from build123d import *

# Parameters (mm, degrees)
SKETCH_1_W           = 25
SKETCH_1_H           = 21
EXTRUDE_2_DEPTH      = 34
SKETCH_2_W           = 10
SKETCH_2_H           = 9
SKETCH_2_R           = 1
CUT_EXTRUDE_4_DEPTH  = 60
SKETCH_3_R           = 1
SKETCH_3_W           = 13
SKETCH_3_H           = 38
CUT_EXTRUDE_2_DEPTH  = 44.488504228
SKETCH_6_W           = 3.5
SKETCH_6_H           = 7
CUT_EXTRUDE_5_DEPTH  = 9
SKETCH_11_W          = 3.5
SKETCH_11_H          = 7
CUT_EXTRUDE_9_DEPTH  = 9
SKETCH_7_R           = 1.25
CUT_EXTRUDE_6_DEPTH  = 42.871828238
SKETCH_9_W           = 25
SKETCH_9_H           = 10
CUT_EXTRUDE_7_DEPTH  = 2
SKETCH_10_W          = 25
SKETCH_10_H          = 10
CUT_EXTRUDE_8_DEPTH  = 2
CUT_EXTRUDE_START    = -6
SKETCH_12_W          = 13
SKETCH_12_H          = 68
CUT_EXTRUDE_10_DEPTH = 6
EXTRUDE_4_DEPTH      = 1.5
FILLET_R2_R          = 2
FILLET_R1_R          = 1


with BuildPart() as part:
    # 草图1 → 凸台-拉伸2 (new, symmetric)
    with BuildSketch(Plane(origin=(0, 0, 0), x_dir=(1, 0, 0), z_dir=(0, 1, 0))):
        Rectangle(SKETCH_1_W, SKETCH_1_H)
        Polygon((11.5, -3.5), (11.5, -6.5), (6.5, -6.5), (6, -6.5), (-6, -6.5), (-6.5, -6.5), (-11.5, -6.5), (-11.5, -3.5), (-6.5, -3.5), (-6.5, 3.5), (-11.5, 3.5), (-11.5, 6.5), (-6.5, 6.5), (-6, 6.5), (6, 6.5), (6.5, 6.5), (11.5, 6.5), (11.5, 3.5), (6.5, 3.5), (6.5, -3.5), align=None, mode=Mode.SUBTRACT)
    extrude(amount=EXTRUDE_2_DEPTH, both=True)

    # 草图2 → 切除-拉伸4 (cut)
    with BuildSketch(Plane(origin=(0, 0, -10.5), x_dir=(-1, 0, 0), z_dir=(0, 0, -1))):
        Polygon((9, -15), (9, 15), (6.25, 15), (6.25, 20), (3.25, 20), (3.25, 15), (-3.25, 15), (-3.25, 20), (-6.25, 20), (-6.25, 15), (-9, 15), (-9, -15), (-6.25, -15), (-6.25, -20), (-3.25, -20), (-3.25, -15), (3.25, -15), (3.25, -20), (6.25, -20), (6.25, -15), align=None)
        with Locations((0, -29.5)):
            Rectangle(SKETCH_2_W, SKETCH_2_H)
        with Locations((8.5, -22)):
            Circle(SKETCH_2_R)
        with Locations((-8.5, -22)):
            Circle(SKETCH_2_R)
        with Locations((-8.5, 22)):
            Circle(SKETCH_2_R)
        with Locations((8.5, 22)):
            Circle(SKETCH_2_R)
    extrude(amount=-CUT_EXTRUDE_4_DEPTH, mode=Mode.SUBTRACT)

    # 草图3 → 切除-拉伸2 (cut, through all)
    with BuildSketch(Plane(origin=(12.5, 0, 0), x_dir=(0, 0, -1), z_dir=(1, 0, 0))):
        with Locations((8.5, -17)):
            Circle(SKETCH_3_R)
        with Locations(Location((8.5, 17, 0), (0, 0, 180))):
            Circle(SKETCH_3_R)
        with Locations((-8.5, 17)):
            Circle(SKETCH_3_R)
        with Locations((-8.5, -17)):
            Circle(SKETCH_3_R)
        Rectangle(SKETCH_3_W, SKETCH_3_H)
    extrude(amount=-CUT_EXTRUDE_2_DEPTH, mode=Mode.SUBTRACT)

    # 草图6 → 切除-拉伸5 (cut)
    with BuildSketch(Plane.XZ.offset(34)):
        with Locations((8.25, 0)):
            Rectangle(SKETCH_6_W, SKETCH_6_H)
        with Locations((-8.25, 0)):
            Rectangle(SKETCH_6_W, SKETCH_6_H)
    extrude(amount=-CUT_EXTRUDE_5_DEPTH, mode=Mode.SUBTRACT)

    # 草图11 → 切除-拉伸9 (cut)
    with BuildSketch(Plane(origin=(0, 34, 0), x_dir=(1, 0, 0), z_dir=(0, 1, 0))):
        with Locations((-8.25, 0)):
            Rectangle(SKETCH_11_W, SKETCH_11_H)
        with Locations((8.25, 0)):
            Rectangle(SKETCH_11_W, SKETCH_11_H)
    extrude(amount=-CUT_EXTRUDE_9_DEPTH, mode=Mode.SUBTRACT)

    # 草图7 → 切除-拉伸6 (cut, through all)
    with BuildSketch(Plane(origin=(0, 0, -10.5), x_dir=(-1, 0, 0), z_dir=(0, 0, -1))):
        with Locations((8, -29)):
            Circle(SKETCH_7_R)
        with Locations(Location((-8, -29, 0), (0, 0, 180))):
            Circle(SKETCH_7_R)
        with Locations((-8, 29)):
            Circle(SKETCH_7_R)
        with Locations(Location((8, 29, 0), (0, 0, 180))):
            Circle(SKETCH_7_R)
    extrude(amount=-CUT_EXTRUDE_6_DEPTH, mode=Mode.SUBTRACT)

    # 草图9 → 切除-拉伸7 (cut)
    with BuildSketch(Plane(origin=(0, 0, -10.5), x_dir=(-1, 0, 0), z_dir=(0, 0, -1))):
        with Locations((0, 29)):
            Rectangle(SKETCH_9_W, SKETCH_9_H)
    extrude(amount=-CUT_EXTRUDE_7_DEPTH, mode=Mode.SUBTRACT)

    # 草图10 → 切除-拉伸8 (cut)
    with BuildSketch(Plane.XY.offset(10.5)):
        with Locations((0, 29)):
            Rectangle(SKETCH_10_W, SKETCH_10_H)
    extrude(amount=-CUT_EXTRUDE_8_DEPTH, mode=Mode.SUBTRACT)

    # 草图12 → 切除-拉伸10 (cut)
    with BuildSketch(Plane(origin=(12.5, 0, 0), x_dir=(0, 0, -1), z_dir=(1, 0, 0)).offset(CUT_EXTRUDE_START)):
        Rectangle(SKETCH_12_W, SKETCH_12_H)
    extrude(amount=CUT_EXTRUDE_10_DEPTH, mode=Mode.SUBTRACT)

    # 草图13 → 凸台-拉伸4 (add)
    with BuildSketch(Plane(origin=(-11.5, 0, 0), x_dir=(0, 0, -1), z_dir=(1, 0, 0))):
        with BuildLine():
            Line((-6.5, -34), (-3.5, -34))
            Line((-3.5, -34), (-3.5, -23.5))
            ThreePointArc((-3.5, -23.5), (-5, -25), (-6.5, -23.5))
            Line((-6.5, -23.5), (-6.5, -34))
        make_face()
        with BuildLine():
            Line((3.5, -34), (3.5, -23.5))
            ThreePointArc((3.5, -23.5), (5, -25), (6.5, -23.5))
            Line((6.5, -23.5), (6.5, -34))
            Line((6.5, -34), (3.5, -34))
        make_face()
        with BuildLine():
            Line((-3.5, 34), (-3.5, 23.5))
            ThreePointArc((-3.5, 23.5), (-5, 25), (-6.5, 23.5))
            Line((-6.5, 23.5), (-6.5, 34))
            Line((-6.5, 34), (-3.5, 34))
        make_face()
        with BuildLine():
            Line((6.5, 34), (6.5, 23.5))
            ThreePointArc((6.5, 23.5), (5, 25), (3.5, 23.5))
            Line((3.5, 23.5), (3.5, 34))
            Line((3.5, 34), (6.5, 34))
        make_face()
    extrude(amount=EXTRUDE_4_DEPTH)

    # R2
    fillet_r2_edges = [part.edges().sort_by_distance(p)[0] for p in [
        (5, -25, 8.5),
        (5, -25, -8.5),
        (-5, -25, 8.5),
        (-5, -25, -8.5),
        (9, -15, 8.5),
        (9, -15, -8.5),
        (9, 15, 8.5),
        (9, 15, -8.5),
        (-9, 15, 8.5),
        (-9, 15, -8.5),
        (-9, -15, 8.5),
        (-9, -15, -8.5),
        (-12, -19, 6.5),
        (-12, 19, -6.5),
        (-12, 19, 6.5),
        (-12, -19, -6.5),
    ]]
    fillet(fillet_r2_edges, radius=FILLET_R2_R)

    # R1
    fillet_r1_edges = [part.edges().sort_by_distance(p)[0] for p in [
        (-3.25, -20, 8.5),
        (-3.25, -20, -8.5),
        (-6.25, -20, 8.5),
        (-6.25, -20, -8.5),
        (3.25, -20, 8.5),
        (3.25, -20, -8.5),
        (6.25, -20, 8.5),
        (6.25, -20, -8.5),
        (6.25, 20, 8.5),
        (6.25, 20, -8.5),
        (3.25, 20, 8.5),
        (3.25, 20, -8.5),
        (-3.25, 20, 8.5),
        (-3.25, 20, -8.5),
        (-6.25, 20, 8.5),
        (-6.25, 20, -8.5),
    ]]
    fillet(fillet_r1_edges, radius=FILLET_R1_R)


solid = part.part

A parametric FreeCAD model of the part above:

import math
import FreeCAD as App
import Part
import Sketcher
from FreeCAD import Vector


def edges_at(feature, points):
    """Names of the edges that pass closest to the given points."""
    edges = feature.Shape.Edges
    near = lambda p: min(range(len(edges)), key=lambda i: edges[i].distToShape(Part.Vertex(*p))[0])
    return sorted({f"Edge{near(p) + 1}" for p in points})


def add_polygon(sketch, points):
    """Adds a closed chain of lines whose ends are joined by coincident constraints."""
    first, n = sketch.GeometryCount, len(points)
    for a, b in zip(points, points[1:] + points[:1]):
        sketch.addGeometry(Part.LineSegment(App.Vector(*a, 0), App.Vector(*b, 0)), False)
    for i in range(n):
        sketch.addConstraint(Sketcher.Constraint("Coincident", first + i, 2, first + (i + 1) % n, 1))

doc = App.newDocument("Part")
params = doc.addObject("Spreadsheet::Sheet", "Params")
for row, (alias, value) in enumerate([
    ("sketch1_width", "25 mm"),
    ("sketch1_width2", "5 mm"),
    ("sketch1_width3", "23 mm"),
    ("sketch1_height", "21 mm"),
    ("sketch1_height2", "3 mm"),
    ("pad1_length", "68 mm"),
    ("sketch2_diameter", "2 mm"),
    ("sketch2_width", "3 mm"),
    ("sketch2_width2", "10 mm"),
    ("sketch2_height", "30 mm"),
    ("sketch2_height2", "5 mm"),
    ("pocket1_length", "60 mm"),
    ("sketch3_diameter", "2 mm"),
    ("sketch3_width", "38 mm"),
    ("sketch3_height", "13 mm"),
    ("sketch4_height", "7 mm"),
    ("sketch4_width", "3.5 mm"),
    ("pocket3_length", "9 mm"),
    ("sketch5_height", "7 mm"),
    ("sketch5_width", "3.5 mm"),
    ("pocket4_length", "9 mm"),
    ("sketch6_diameter", "2.5 mm"),
    ("sketch7_width", "25 mm"),
    ("sketch7_height", "10 mm"),
    ("pocket6_length", "2 mm"),
    ("sketch8_width", "25 mm"),
    ("sketch8_height", "10 mm"),
    ("pocket7_length", "2 mm"),
    ("sketch9_width", "68 mm"),
    ("sketch9_height", "13 mm"),
    ("pocket8_length", "6 mm"),
    ("sketch10_radius", "1.5 mm"),
    ("sketch10_width", "10.5 mm"),
    ("pad2_length", "1.5 mm"),
    ("fillet_radius", "2 mm"),
    ("fillet2_radius", "1 mm"),
], start=1):
    params.set(f"A{row}", alias)
    params.set(f"B{row}", "=" + value)
    params.setAlias(f"B{row}", alias)

body = doc.addObject("PartDesign::Body", "Body")

# Sketch on XZ plane
sketch1 = body.newObject("Sketcher::SketchObject", "Sketch")
sketch1.AttachmentSupport = (doc.getObject("XZ_Plane"), [""])
sketch1.MapMode = "FlatFace"
add_polygon(sketch1, [(-12.5, -10.5), (-12.5, 10.5), (12.5, 10.5), (12.5, -10.5)])  # lines 0-3
add_polygon(sketch1, [(6.5, 3.5), (11.5, 3.5), (11.5, 6.5), (-11.5, 6.5), (-11.5, 3.5), (-6.5, 3.5), (-6.5, -3.5), (-11.5, -3.5), (-11.5, -6.5), (11.5, -6.5), (11.5, -3.5), (6.5, -3.5)])  # lines 4-15
sketch1.addConstraint(Sketcher.Constraint("Vertical", 0))
sketch1.addConstraint(Sketcher.Constraint("Horizontal", 1))
sketch1.addConstraint(Sketcher.Constraint("Vertical", 2))
sketch1.addConstraint(Sketcher.Constraint("Horizontal", 3))
sketch1.addConstraint(Sketcher.Constraint("Horizontal", 4))
sketch1.addConstraint(Sketcher.Constraint("Vertical", 5))
sketch1.addConstraint(Sketcher.Constraint("Horizontal", 6))
sketch1.addConstraint(Sketcher.Constraint("Vertical", 7))
sketch1.addConstraint(Sketcher.Constraint("Horizontal", 8))
sketch1.addConstraint(Sketcher.Constraint("Vertical", 9))
sketch1.addConstraint(Sketcher.Constraint("Horizontal", 10))
sketch1.addConstraint(Sketcher.Constraint("Vertical", 11))
sketch1.addConstraint(Sketcher.Constraint("Horizontal", 12))
sketch1.addConstraint(Sketcher.Constraint("Vertical", 13))
sketch1.addConstraint(Sketcher.Constraint("Horizontal", 14))
sketch1.addConstraint(Sketcher.Constraint("Vertical", 15))
sketch1.addConstraint(Sketcher.Constraint("Symmetric", 0, 2, 2, 2, -1, 1))
sketch1.addConstraint(Sketcher.Constraint("Symmetric", 4, 2, 10, 2, -1, 1))
sketch1.addConstraint(Sketcher.Constraint("Symmetric", 6, 2, 12, 2, -1, 1))
sketch1.addConstraint(Sketcher.Constraint("Symmetric", 8, 2, 14, 2, -1, 1))
sketch1.addConstraint(Sketcher.Constraint("Symmetric", 4, 2, 7, 2, -2))
sketch1.addConstraint(Sketcher.Constraint("DistanceX", 1, 1, 1, 2, 25.0))
sketch1.addConstraint(Sketcher.Constraint("DistanceX", 4, 1, 4, 2, 5.0))
sketch1.addConstraint(Sketcher.Constraint("DistanceX", 6, 2, 6, 1, 23.0))
sketch1.addConstraint(Sketcher.Constraint("DistanceY", 0, 1, 0, 2, 21.0))
sketch1.addConstraint(Sketcher.Constraint("DistanceY", 5, 1, 5, 2, 3.0))
sketch1.addConstraint(Sketcher.Constraint("DistanceY", 9, 2, 9, 1, 7.0))
sketch1.setExpression("Constraints[37]", "Params.sketch1_width")
sketch1.setExpression("Constraints[38]", "Params.sketch1_width2")
sketch1.setExpression("Constraints[39]", "Params.sketch1_width3")
sketch1.setExpression("Constraints[40]", "Params.sketch1_height")
sketch1.setExpression("Constraints[41]", "Params.sketch1_height2")
pad1 = body.newObject("PartDesign::Pad", "Pad")
pad1.Profile = sketch1
pad1.setExpression("Length", "Params.pad1_length")
pad1.Midplane = True

# Sketch on XY plane
sketch2 = body.newObject("Sketcher::SketchObject", "Sketch001")
sketch2.AttachmentSupport = (doc.getObject("XY_Plane"), [""])
sketch2.MapMode = "FlatFace"
sketch2.AttachmentOffset = App.Placement(Vector(0, 0, -10.5), App.Rotation())
add_polygon(sketch2, [(-9, -15), (-9, 15), (-6.25, 15), (-6.25, 20), (-3.25, 20), (-3.25, 15), (3.25, 15), (3.25, 20), (6.25, 20), (6.25, 15), (9, 15), (9, -15), (6.25, -15), (6.25, -20), (3.25, -20), (3.25, -15), (-3.25, -15), (-3.25, -20), (-6.25, -20), (-6.25, -15)])  # lines 0-19
add_polygon(sketch2, [(5, -25), (5, -34), (-5, -34), (-5, -25)])  # lines 20-23
sketch2.addGeometry(Part.Circle(Vector(-8.5, -22, 0), Vector(0, 0, 1), 1), False)  # 24
sketch2.addGeometry(Part.Circle(Vector(8.5, -22, 0), Vector(0, 0, 1), 1), False)  # 25
sketch2.addGeometry(Part.Circle(Vector(8.5, 22, 0), Vector(0, 0, 1), 1), False)  # 26
sketch2.addGeometry(Part.Circle(Vector(-8.5, 22, 0), Vector(0, 0, 1), 1), False)  # 27
sketch2.addConstraint(Sketcher.Constraint("Vertical", 0))
sketch2.addConstraint(Sketcher.Constraint("Horizontal", 1))
sketch2.addConstraint(Sketcher.Constraint("Vertical", 2))
sketch2.addConstraint(Sketcher.Constraint("Horizontal", 3))
sketch2.addConstraint(Sketcher.Constraint("Vertical", 4))
sketch2.addConstraint(Sketcher.Constraint("Horizontal", 5))
sketch2.addConstraint(Sketcher.Constraint("Vertical", 6))
sketch2.addConstraint(Sketcher.Constraint("Horizontal", 7))
sketch2.addConstraint(Sketcher.Constraint("Vertical", 8))
sketch2.addConstraint(Sketcher.Constraint("Horizontal", 9))
sketch2.addConstraint(Sketcher.Constraint("Vertical", 10))
sketch2.addConstraint(Sketcher.Constraint("Horizontal", 11))
sketch2.addConstraint(Sketcher.Constraint("Vertical", 12))
sketch2.addConstraint(Sketcher.Constraint("Horizontal", 13))
sketch2.addConstraint(Sketcher.Constraint("Vertical", 14))
sketch2.addConstraint(Sketcher.Constraint("Horizontal", 15))
sketch2.addConstraint(Sketcher.Constraint("Vertical", 16))
sketch2.addConstraint(Sketcher.Constraint("Horizontal", 17))
sketch2.addConstraint(Sketcher.Constraint("Vertical", 18))
sketch2.addConstraint(Sketcher.Constraint("Horizontal", 19))
sketch2.addConstraint(Sketcher.Constraint("Vertical", 20))
sketch2.addConstraint(Sketcher.Constraint("Horizontal", 21))
sketch2.addConstraint(Sketcher.Constraint("Vertical", 22))
sketch2.addConstraint(Sketcher.Constraint("Horizontal", 23))
sketch2.addConstraint(Sketcher.Constraint("Equal", 24, 25))
sketch2.addConstraint(Sketcher.Constraint("Equal", 25, 26))
sketch2.addConstraint(Sketcher.Constraint("Equal", 26, 27))
sketch2.addConstraint(Sketcher.Constraint("Symmetric", 24, 3, 26, 3, -1, 1))
sketch2.addConstraint(Sketcher.Constraint("Symmetric", 25, 3, 27, 3, -1, 1))
sketch2.addConstraint(Sketcher.Constraint("Symmetric", 0, 2, 10, 2, -1, 1))
sketch2.addConstraint(Sketcher.Constraint("Symmetric", 2, 2, 12, 2, -1, 1))
sketch2.addConstraint(Sketcher.Constraint("Symmetric", 4, 2, 14, 2, -1, 1))
sketch2.addConstraint(Sketcher.Constraint("Symmetric", 6, 2, 16, 2, -1, 1))
sketch2.addConstraint(Sketcher.Constraint("Symmetric", 8, 2, 18, 2, -1, 1))
sketch2.addConstraint(Sketcher.Constraint("Symmetric", 24, 3, 25, 3, -2))
sketch2.addConstraint(Sketcher.Constraint("Symmetric", 3, 2, 6, 2, -2))
sketch2.addConstraint(Sketcher.Constraint("Symmetric", 1, 2, 8, 2, -2))
sketch2.addConstraint(Sketcher.Constraint("Horizontal", 1, 2, 4, 2))
sketch2.addConstraint(Sketcher.Constraint("Diameter", 24, 2.0))
sketch2.addConstraint(Sketcher.Constraint("DistanceX", 3, 1, 3, 2, 3.0))
sketch2.addConstraint(Sketcher.Constraint("DistanceX", 21, 2, 21, 1, 10.0))
sketch2.addConstraint(Sketcher.Constraint("DistanceY", 0, 1, 0, 2, 30.0))
sketch2.addConstraint(Sketcher.Constraint("DistanceY", 2, 1, 2, 2, 5.0))
sketch2.addConstraint(Sketcher.Constraint("DistanceY", 20, 2, 20, 1, 9.0))
sketch2.addConstraint(Sketcher.Constraint("DistanceX", 5, 1, 5, 2, 6.5))
sketch2.addConstraint(Sketcher.Constraint("DistanceY", 24, 3, -1, 1, 22.0))
sketch2.addConstraint(Sketcher.Constraint("DistanceX", 0, 2, -1, 1, 9.0))
sketch2.addConstraint(Sketcher.Constraint("DistanceX", -1, 1, 20, 2, 5.0))
sketch2.addConstraint(Sketcher.Constraint("DistanceY", 20, 2, -1, 1, 34.0))
sketch2.addConstraint(Sketcher.Constraint("DistanceX", 24, 3, 25, 3, 17.0))
sketch2.setExpression("Constraints[62]", "Params.sketch2_diameter")
sketch2.setExpression("Constraints[63]", "Params.sketch2_width")
sketch2.setExpression("Constraints[64]", "Params.sketch2_width2")
sketch2.setExpression("Constraints[65]", "Params.sketch2_height")
sketch2.setExpression("Constraints[66]", "Params.sketch2_height2")
pocket1 = body.newObject("PartDesign::Pocket", "Pocket")
pocket1.Profile = sketch2
pocket1.setExpression("Length", "Params.pocket1_length")
pocket1.Reversed = True

# Sketch on YZ plane
sketch3 = body.newObject("Sketcher::SketchObject", "Sketch002")
sketch3.AttachmentSupport = (doc.getObject("YZ_Plane"), [""])
sketch3.MapMode = "FlatFace"
sketch3.AttachmentOffset = App.Placement(Vector(0, 0, 12.5), App.Rotation())
sketch3.addGeometry(Part.Circle(Vector(-17, -8.5, 0), Vector(0, 0, 1), 1), False)  # 0
sketch3.addGeometry(Part.Circle(Vector(17, -8.5, 0), Vector(0, 0, 1), 1), False)  # 1
sketch3.addGeometry(Part.Circle(Vector(17, 8.5, 0), Vector(0, 0, 1), 1), False)  # 2
sketch3.addGeometry(Part.Circle(Vector(-17, 8.5, 0), Vector(0, 0, 1), 1), False)  # 3
add_polygon(sketch3, [(19, 6.5), (-19, 6.5), (-19, -6.5), (19, -6.5)])  # lines 4-7
sketch3.addConstraint(Sketcher.Constraint("Horizontal", 4))
sketch3.addConstraint(Sketcher.Constraint("Vertical", 5))
sketch3.addConstraint(Sketcher.Constraint("Horizontal", 6))
sketch3.addConstraint(Sketcher.Constraint("Vertical", 7))
sketch3.addConstraint(Sketcher.Constraint("Equal", 0, 1))
sketch3.addConstraint(Sketcher.Constraint("Equal", 1, 2))
sketch3.addConstraint(Sketcher.Constraint("Equal", 2, 3))
sketch3.addConstraint(Sketcher.Constraint("Symmetric", 0, 3, 2, 3, -1, 1))
sketch3.addConstraint(Sketcher.Constraint("Symmetric", 1, 3, 3, 3, -1, 1))
sketch3.addConstraint(Sketcher.Constraint("Symmetric", 4, 2, 6, 2, -1, 1))
sketch3.addConstraint(Sketcher.Constraint("Symmetric", 0, 3, 1, 3, -2))
sketch3.addConstraint(Sketcher.Constraint("Diameter", 0, 2.0))
sketch3.addConstraint(Sketcher.Constraint("DistanceX", 4, 2, 4, 1, 38.0))
sketch3.addConstraint(Sketcher.Constraint("DistanceY", 5, 2, 5, 1, 13.0))
sketch3.addConstraint(Sketcher.Constraint("DistanceX", 0, 3, -1, 1, 17.0))
sketch3.addConstraint(Sketcher.Constraint("DistanceY", 1, 3, 2, 3, 17.0))
sketch3.setExpression("Constraints[15]", "Params.sketch3_diameter")
sketch3.setExpression("Constraints[16]", "Params.sketch3_width")
sketch3.setExpression("Constraints[17]", "Params.sketch3_height")
pocket2 = body.newObject("PartDesign::Pocket", "Pocket001")
pocket2.Profile = sketch3
pocket2.Type = "ThroughAll"

# Sketch on XZ plane
sketch4 = body.newObject("Sketcher::SketchObject", "Sketch003")
sketch4.AttachmentSupport = (doc.getObject("XZ_Plane"), [""])
sketch4.MapMode = "FlatFace"
sketch4.AttachmentOffset = App.Placement(Vector(0, 0, 34), App.Rotation())
add_polygon(sketch4, [(6.5, 3.5), (6.5, -3.5), (10, -3.5), (10, 3.5)])  # lines 0-3
add_polygon(sketch4, [(-10, 3.5), (-10, -3.5), (-6.5, -3.5), (-6.5, 3.5)])  # lines 4-7
sketch4.addConstraint(Sketcher.Constraint("Vertical", 0))
sketch4.addConstraint(Sketcher.Constraint("Horizontal", 1))
sketch4.addConstraint(Sketcher.Constraint("Vertical", 2))
sketch4.addConstraint(Sketcher.Constraint("Horizontal", 3))
sketch4.addConstraint(Sketcher.Constraint("Vertical", 4))
sketch4.addConstraint(Sketcher.Constraint("Horizontal", 5))
sketch4.addConstraint(Sketcher.Constraint("Vertical", 6))
sketch4.addConstraint(Sketcher.Constraint("Horizontal", 7))
sketch4.addConstraint(Sketcher.Constraint("Symmetric", 2, 2, 4, 2, -1, 1))
sketch4.addConstraint(Sketcher.Constraint("Symmetric", 0, 2, 6, 2, -1, 1))
sketch4.addConstraint(Sketcher.Constraint("Horizontal", 1, 2, 4, 2))
sketch4.addConstraint(Sketcher.Constraint("DistanceY", 0, 2, 0, 1, 7.0))
sketch4.addConstraint(Sketcher.Constraint("DistanceX", 1, 1, 1, 2, 3.5))
sketch4.addConstraint(Sketcher.Constraint("DistanceX", -1, 1, 1, 2, 10.0))
sketch4.setExpression("Constraints[19]", "Params.sketch4_height")
sketch4.setExpression("Constraints[20]", "Params.sketch4_width")
pocket3 = body.newObject("PartDesign::Pocket", "Pocket002")
pocket3.Profile = sketch4
pocket3.setExpression("Length", "Params.pocket3_length")

# Sketch on XZ plane
sketch5 = body.newObject("Sketcher::SketchObject", "Sketch004")
sketch5.AttachmentSupport = (doc.getObject("XZ_Plane"), [""])
sketch5.MapMode = "FlatFace"
sketch5.AttachmentOffset = App.Placement(Vector(0, 0, -34), App.Rotation())
add_polygon(sketch5, [(-10, -3.5), (-10, 3.5), (-6.5, 3.5), (-6.5, -3.5)])  # lines 0-3
add_polygon(sketch5, [(6.5, -3.5), (6.5, 3.5), (10, 3.5), (10, -3.5)])  # lines 4-7
sketch5.addConstraint(Sketcher.Constraint("Vertical", 0))
sketch5.addConstraint(Sketcher.Constraint("Horizontal", 1))
sketch5.addConstraint(Sketcher.Constraint("Vertical", 2))
sketch5.addConstraint(Sketcher.Constraint("Horizontal", 3))
sketch5.addConstraint(Sketcher.Constraint("Vertical", 4))
sketch5.addConstraint(Sketcher.Constraint("Horizontal", 5))
sketch5.addConstraint(Sketcher.Constraint("Vertical", 6))
sketch5.addConstraint(Sketcher.Constraint("Horizontal", 7))
sketch5.addConstraint(Sketcher.Constraint("Symmetric", 2, 2, 4, 2, -1, 1))
sketch5.addConstraint(Sketcher.Constraint("Symmetric", 0, 2, 6, 2, -1, 1))
sketch5.addConstraint(Sketcher.Constraint("Horizontal", 1, 2, 4, 2))
sketch5.addConstraint(Sketcher.Constraint("DistanceY", 0, 1, 0, 2, 7.0))
sketch5.addConstraint(Sketcher.Constraint("DistanceX", 1, 1, 1, 2, 3.5))
sketch5.addConstraint(Sketcher.Constraint("DistanceX", 0, 2, -1, 1, 10.0))
sketch5.setExpression("Constraints[19]", "Params.sketch5_height")
sketch5.setExpression("Constraints[20]", "Params.sketch5_width")
pocket4 = body.newObject("PartDesign::Pocket", "Pocket003")
pocket4.Profile = sketch5
pocket4.setExpression("Length", "Params.pocket4_length")
pocket4.Reversed = True

# Sketch on XY plane
sketch6 = body.newObject("Sketcher::SketchObject", "Sketch005")
sketch6.AttachmentSupport = (doc.getObject("XY_Plane"), [""])
sketch6.MapMode = "FlatFace"
sketch6.AttachmentOffset = App.Placement(Vector(0, 0, -10.5), App.Rotation())
sketch6.addGeometry(Part.Circle(Vector(-8, -29, 0), Vector(0, 0, 1), 1.25), False)
sketch6.addGeometry(Part.Circle(Vector(8, -29, 0), Vector(0, 0, 1), 1.25), False)
sketch6.addGeometry(Part.Circle(Vector(8, 29, 0), Vector(0, 0, 1), 1.25), False)
sketch6.addGeometry(Part.Circle(Vector(-8, 29, 0), Vector(0, 0, 1), 1.25), False)
sketch6.addConstraint(Sketcher.Constraint("Equal", 0, 1))
sketch6.addConstraint(Sketcher.Constraint("Equal", 1, 2))
sketch6.addConstraint(Sketcher.Constraint("Equal", 2, 3))
sketch6.addConstraint(Sketcher.Constraint("Symmetric", 0, 3, 2, 3, -1, 1))
sketch6.addConstraint(Sketcher.Constraint("Symmetric", 1, 3, 3, 3, -1, 1))
sketch6.addConstraint(Sketcher.Constraint("Symmetric", 0, 3, 1, 3, -2))
sketch6.addConstraint(Sketcher.Constraint("Diameter", 0, 2.5))
sketch6.addConstraint(Sketcher.Constraint("DistanceX", 0, 3, -1, 1, 8.0))
sketch6.addConstraint(Sketcher.Constraint("DistanceY", 0, 3, -1, 1, 29.0))
sketch6.setExpression("Constraints[6]", "Params.sketch6_diameter")
pocket5 = body.newObject("PartDesign::Pocket", "Pocket004")
pocket5.Profile = sketch6
pocket5.Type = "ThroughAll"
pocket5.Reversed = True

# Sketch on XY plane
sketch7 = body.newObject("Sketcher::SketchObject", "Sketch006")
sketch7.AttachmentSupport = (doc.getObject("XY_Plane"), [""])
sketch7.MapMode = "FlatFace"
sketch7.AttachmentOffset = App.Placement(Vector(0, 0, -10.5), App.Rotation())
add_polygon(sketch7, [(12.5, 34), (12.5, 24), (-12.5, 24), (-12.5, 34)])  # lines 0-3
sketch7.addConstraint(Sketcher.Constraint("Vertical", 0))
sketch7.addConstraint(Sketcher.Constraint("Horizontal", 1))
sketch7.addConstraint(Sketcher.Constraint("Vertical", 2))
sketch7.addConstraint(Sketcher.Constraint("Horizontal", 3))
sketch7.addConstraint(Sketcher.Constraint("DistanceX", 1, 2, 1, 1, 25.0))
sketch7.addConstraint(Sketcher.Constraint("DistanceY", 0, 2, 0, 1, 10.0))
sketch7.addConstraint(Sketcher.Constraint("DistanceY", -1, 1, 0, 2, 24.0))
sketch7.addConstraint(Sketcher.Constraint("DistanceX", -1, 1, 0, 2, 12.5))
sketch7.setExpression("Constraints[8]", "Params.sketch7_width")
sketch7.setExpression("Constraints[9]", "Params.sketch7_height")
pocket6 = body.newObject("PartDesign::Pocket", "Pocket005")
pocket6.Profile = sketch7
pocket6.setExpression("Length", "Params.pocket6_length")
pocket6.Reversed = True

# Sketch on XY plane
sketch8 = body.newObject("Sketcher::SketchObject", "Sketch007")
sketch8.AttachmentSupport = (doc.getObject("XY_Plane"), [""])
sketch8.MapMode = "FlatFace"
sketch8.AttachmentOffset = App.Placement(Vector(0, 0, 10.5), App.Rotation())
add_polygon(sketch8, [(-12.5, 34), (-12.5, 24), (12.5, 24), (12.5, 34)])  # lines 0-3
sketch8.addConstraint(Sketcher.Constraint("Vertical", 0))
sketch8.addConstraint(Sketcher.Constraint("Horizontal", 1))
sketch8.addConstraint(Sketcher.Constraint("Vertical", 2))
sketch8.addConstraint(Sketcher.Constraint("Horizontal", 3))
sketch8.addConstraint(Sketcher.Constraint("DistanceX", 1, 1, 1, 2, 25.0))
sketch8.addConstraint(Sketcher.Constraint("DistanceY", 0, 2, 0, 1, 10.0))
sketch8.addConstraint(Sketcher.Constraint("DistanceY", -1, 1, 0, 2, 24.0))
sketch8.addConstraint(Sketcher.Constraint("DistanceX", 0, 2, -1, 1, 12.5))
sketch8.setExpression("Constraints[8]", "Params.sketch8_width")
sketch8.setExpression("Constraints[9]", "Params.sketch8_height")
pocket7 = body.newObject("PartDesign::Pocket", "Pocket006")
pocket7.Profile = sketch8
pocket7.setExpression("Length", "Params.pocket7_length")

# Sketch on YZ plane
sketch9 = body.newObject("Sketcher::SketchObject", "Sketch008")
sketch9.AttachmentSupport = (doc.getObject("YZ_Plane"), [""])
sketch9.MapMode = "FlatFace"
sketch9.AttachmentOffset = App.Placement(Vector(0, 0, 6.5), App.Rotation())
add_polygon(sketch9, [(34, 6.5), (-34, 6.5), (-34, -6.5), (34, -6.5)])  # lines 0-3
sketch9.addConstraint(Sketcher.Constraint("Horizontal", 0))
sketch9.addConstraint(Sketcher.Constraint("Vertical", 1))
sketch9.addConstraint(Sketcher.Constraint("Horizontal", 2))
sketch9.addConstraint(Sketcher.Constraint("Vertical", 3))
sketch9.addConstraint(Sketcher.Constraint("Symmetric", 0, 2, 2, 2, -1, 1))
sketch9.addConstraint(Sketcher.Constraint("DistanceX", 0, 2, 0, 1, 68.0))
sketch9.addConstraint(Sketcher.Constraint("DistanceY", 1, 2, 1, 1, 13.0))
sketch9.setExpression("Constraints[9]", "Params.sketch9_width")
sketch9.setExpression("Constraints[10]", "Params.sketch9_height")
pocket8 = body.newObject("PartDesign::Pocket", "Pocket007")
pocket8.Profile = sketch9
pocket8.setExpression("Length", "Params.pocket8_length")
pocket8.Reversed = True

# Sketch on YZ plane
sketch10 = body.newObject("Sketcher::SketchObject", "Sketch009")
sketch10.AttachmentSupport = (doc.getObject("YZ_Plane"), [""])
sketch10.MapMode = "FlatFace"
sketch10.AttachmentOffset = App.Placement(Vector(0, 0, -11.5), App.Rotation())
sketch10.addGeometry(Part.LineSegment(Vector(-34, 6.5, 0), Vector(-34, 3.5, 0)), False)
sketch10.addGeometry(Part.LineSegment(Vector(-34, 3.5, 0), Vector(-23.5, 3.5, 0)), False)
sketch10.addGeometry(Part.ArcOfCircle(Part.Circle(Vector(-23.5, 5, 0), Vector(0, 0, 1), 1.5), math.radians(90), math.radians(270)), False)
sketch10.addGeometry(Part.LineSegment(Vector(-23.5, 6.5, 0), Vector(-34, 6.5, 0)), False)
sketch10.addGeometry(Part.LineSegment(Vector(-23.5, -3.5, 0), Vector(-34, -3.5, 0)), False)
sketch10.addGeometry(Part.LineSegment(Vector(-34, -3.5, 0), Vector(-34, -6.5, 0)), False)
sketch10.addGeometry(Part.LineSegment(Vector(-34, -6.5, 0), Vector(-23.5, -6.5, 0)), False)
sketch10.addGeometry(Part.ArcOfCircle(Part.Circle(Vector(-23.5, -5, 0), Vector(0, 0, 1), 1.5), math.radians(90), math.radians(270)), False)
sketch10.addGeometry(Part.LineSegment(Vector(23.5, 3.5, 0), Vector(34, 3.5, 0)), False)
sketch10.addGeometry(Part.LineSegment(Vector(34, 3.5, 0), Vector(34, 6.5, 0)), False)
sketch10.addGeometry(Part.LineSegment(Vector(34, 6.5, 0), Vector(23.5, 6.5, 0)), False)
sketch10.addGeometry(Part.ArcOfCircle(Part.Circle(Vector(23.5, 5, 0), Vector(0, 0, 1), 1.5), math.radians(-90), math.radians(90)), False)
sketch10.addGeometry(Part.LineSegment(Vector(23.5, -6.5, 0), Vector(34, -6.5, 0)), False)
sketch10.addGeometry(Part.LineSegment(Vector(34, -6.5, 0), Vector(34, -3.5, 0)), False)
sketch10.addGeometry(Part.LineSegment(Vector(34, -3.5, 0), Vector(23.5, -3.5, 0)), False)
sketch10.addGeometry(Part.ArcOfCircle(Part.Circle(Vector(23.5, -5, 0), Vector(0, 0, 1), 1.5), math.radians(-90), math.radians(90)), False)
sketch10.addConstraint(Sketcher.Constraint("Coincident", 0, 2, 1, 1))
sketch10.addConstraint(Sketcher.Constraint("Tangent", 1, 2, 2, 2))
sketch10.addConstraint(Sketcher.Constraint("Tangent", 2, 1, 3, 1))
sketch10.addConstraint(Sketcher.Constraint("Coincident", 3, 2, 0, 1))
sketch10.addConstraint(Sketcher.Constraint("Coincident", 4, 2, 5, 1))
sketch10.addConstraint(Sketcher.Constraint("Coincident", 5, 2, 6, 1))
sketch10.addConstraint(Sketcher.Constraint("Tangent", 6, 2, 7, 2))
sketch10.addConstraint(Sketcher.Constraint("Tangent", 7, 1, 4, 1))
sketch10.addConstraint(Sketcher.Constraint("Coincident", 8, 2, 9, 1))
sketch10.addConstraint(Sketcher.Constraint("Coincident", 9, 2, 10, 1))
sketch10.addConstraint(Sketcher.Constraint("Tangent", 10, 2, 11, 2))
sketch10.addConstraint(Sketcher.Constraint("Tangent", 11, 1, 8, 1))
sketch10.addConstraint(Sketcher.Constraint("Coincident", 12, 2, 13, 1))
sketch10.addConstraint(Sketcher.Constraint("Coincident", 13, 2, 14, 1))
sketch10.addConstraint(Sketcher.Constraint("Tangent", 14, 2, 15, 2))
sketch10.addConstraint(Sketcher.Constraint("Tangent", 15, 1, 12, 1))
sketch10.addConstraint(Sketcher.Constraint("Vertical", 0))
sketch10.addConstraint(Sketcher.Constraint("Horizontal", 1))
sketch10.addConstraint(Sketcher.Constraint("Horizontal", 3))
sketch10.addConstraint(Sketcher.Constraint("Horizontal", 4))
sketch10.addConstraint(Sketcher.Constraint("Vertical", 5))
sketch10.addConstraint(Sketcher.Constraint("Horizontal", 6))
sketch10.addConstraint(Sketcher.Constraint("Horizontal", 8))
sketch10.addConstraint(Sketcher.Constraint("Vertical", 9))
sketch10.addConstraint(Sketcher.Constraint("Horizontal", 10))
sketch10.addConstraint(Sketcher.Constraint("Horizontal", 12))
sketch10.addConstraint(Sketcher.Constraint("Vertical", 13))
sketch10.addConstraint(Sketcher.Constraint("Horizontal", 14))
sketch10.addConstraint(Sketcher.Constraint("Equal", 2, 7))
sketch10.addConstraint(Sketcher.Constraint("Equal", 7, 11))
sketch10.addConstraint(Sketcher.Constraint("Equal", 11, 15))
sketch10.addConstraint(Sketcher.Constraint("Symmetric", 7, 3, 11, 3, -1, 1))
sketch10.addConstraint(Sketcher.Constraint("Symmetric", 2, 3, 15, 3, -1, 1))
sketch10.addConstraint(Sketcher.Constraint("Symmetric", 2, 3, 11, 3, -2))
sketch10.addConstraint(Sketcher.Constraint("Vertical", 3, 2, 4, 2))
sketch10.addConstraint(Sketcher.Constraint("Vertical", 9, 2, 12, 2))
sketch10.addConstraint(Sketcher.Constraint("Equal", 6, 8))
sketch10.addConstraint(Sketcher.Constraint("Radius", 2, 1.5))
sketch10.addConstraint(Sketcher.Constraint("DistanceX", 1, 1, 1, 2, 10.5))
sketch10.addConstraint(Sketcher.Constraint("DistanceY", -1, 1, 2, 3, 5.0))
sketch10.addConstraint(Sketcher.Constraint("DistanceX", 0, 2, -1, 1, 34.0))
sketch10.setExpression("Constraints[37]", "Params.sketch10_radius")
sketch10.setExpression("Constraints[38]", "Params.sketch10_width")
pad2 = body.newObject("PartDesign::Pad", "Pad001")
pad2.Profile = sketch10
pad2.setExpression("Length", "Params.pad2_length")
doc.recompute()

fillet = body.newObject("PartDesign::Fillet", "Fillet")
fillet.Base = (pad2, edges_at(pad2, [
    (5, -25, 8.5),
    (5, -25, -8.5),
    (-5, -25, 8.5),
    (-5, -25, -8.5),
    (9, -15, 8.5),
    (9, -15, -8.5),
    (9, 15, 8.5),
    (9, 15, -8.5),
    (-9, 15, 8.5),
    (-9, 15, -8.5),
    (-9, -15, 8.5),
    (-9, -15, -8.5),
    (-12, -19, 6.5),
    (-12, 19, -6.5),
    (-12, 19, 6.5),
    (-12, -19, -6.5),
]))
fillet.setExpression("Radius", "Params.fillet_radius")
doc.recompute()

fillet2 = body.newObject("PartDesign::Fillet", "Fillet001")
fillet2.Base = (fillet, edges_at(fillet, [
    (-3.25, -20, 8.5),
    (-3.25, -20, -8.5),
    (-6.25, -20, 8.5),
    (-6.25, -20, -8.5),
    (3.25, -20, 8.5),
    (3.25, -20, -8.5),
    (6.25, -20, 8.5),
    (6.25, -20, -8.5),
    (6.25, 20, 8.5),
    (6.25, 20, -8.5),
    (3.25, 20, 8.5),
    (3.25, 20, -8.5),
    (-3.25, 20, 8.5),
    (-3.25, 20, -8.5),
    (-6.25, 20, 8.5),
    (-6.25, 20, -8.5),
]))
fillet2.setExpression("Radius", "Params.fillet2_radius")

doc.recompute()
